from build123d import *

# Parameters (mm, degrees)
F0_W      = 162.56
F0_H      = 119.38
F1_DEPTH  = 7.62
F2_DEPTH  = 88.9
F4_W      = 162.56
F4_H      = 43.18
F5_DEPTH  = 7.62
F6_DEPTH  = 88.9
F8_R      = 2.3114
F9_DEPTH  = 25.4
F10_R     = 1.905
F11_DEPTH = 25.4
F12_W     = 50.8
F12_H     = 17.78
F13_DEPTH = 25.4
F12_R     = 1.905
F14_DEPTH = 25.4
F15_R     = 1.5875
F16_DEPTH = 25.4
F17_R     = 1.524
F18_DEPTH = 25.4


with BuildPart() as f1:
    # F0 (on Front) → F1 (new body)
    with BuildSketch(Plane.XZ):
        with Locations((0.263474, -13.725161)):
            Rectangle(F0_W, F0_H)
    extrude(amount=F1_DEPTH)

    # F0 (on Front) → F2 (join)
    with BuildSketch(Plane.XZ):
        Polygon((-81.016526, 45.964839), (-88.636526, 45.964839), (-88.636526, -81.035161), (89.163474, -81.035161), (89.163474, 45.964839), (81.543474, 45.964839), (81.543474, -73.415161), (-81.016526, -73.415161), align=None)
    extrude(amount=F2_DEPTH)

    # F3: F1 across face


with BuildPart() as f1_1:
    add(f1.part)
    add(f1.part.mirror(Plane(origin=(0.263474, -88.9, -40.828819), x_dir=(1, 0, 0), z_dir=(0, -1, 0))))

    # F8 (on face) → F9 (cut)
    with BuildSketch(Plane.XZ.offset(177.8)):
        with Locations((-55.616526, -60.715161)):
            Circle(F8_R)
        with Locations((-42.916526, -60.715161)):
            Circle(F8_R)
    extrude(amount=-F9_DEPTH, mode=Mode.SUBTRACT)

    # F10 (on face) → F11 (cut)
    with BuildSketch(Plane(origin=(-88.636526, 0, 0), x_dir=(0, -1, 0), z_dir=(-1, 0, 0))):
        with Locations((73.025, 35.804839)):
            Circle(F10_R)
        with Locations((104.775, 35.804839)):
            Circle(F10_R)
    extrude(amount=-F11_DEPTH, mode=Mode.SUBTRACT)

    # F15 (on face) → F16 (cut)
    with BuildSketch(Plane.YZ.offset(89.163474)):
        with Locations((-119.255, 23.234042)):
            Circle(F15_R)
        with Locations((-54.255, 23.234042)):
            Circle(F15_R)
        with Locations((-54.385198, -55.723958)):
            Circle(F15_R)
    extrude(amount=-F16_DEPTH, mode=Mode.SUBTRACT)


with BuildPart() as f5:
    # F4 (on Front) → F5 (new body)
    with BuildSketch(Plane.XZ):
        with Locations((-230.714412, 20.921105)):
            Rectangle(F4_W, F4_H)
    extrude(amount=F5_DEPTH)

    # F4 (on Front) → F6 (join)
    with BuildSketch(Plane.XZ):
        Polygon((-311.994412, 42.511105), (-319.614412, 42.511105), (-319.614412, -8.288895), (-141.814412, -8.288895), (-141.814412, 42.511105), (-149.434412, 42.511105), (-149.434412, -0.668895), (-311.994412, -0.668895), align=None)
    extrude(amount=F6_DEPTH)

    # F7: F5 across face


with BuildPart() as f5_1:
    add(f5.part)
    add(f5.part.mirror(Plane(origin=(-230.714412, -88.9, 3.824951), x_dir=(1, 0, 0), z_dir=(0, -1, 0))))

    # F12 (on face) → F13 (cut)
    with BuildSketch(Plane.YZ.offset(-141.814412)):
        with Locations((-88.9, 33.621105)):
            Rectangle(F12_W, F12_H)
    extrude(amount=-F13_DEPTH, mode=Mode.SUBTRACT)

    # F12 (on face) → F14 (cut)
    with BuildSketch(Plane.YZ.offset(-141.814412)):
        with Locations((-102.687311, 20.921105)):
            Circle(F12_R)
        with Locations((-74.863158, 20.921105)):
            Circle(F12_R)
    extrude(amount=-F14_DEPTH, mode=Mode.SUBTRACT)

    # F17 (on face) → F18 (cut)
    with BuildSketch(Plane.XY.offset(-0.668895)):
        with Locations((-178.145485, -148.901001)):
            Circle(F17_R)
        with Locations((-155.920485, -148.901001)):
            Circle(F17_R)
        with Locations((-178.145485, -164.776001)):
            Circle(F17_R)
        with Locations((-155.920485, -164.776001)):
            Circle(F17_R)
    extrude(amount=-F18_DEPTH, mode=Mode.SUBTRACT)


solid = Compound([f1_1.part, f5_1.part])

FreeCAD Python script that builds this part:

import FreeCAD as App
import Part
import Sketcher
from FreeCAD import Vector
Q = App.Units.Quantity

doc = App.newDocument("Part")
body = doc.addObject("PartDesign::Body", "Body")

# Sketch on XZ plane
sketch1 = doc.addObject("Sketcher::SketchObject", "Sketch")
body.addObject(sketch1)
sketch1.AttachmentSupport = (doc.XZ_Plane, [""])
sketch1.MapMode = "FlatFace"
sketch1.addGeometry([
    Part.LineSegment(Vector(-81, 46, 0), Vector(-81, -73, 0)),
    Part.LineSegment(Vector(-81, -73, 0), Vector(82, -73, 0)),
    Part.LineSegment(Vector(82, -73, 0), Vector(82, 46, 0)),
    Part.LineSegment(Vector(82, 46, 0), Vector(-81, 46, 0)),
], False)
sketch1.addConstraint([
    Sketcher.Constraint("Coincident", 0, 2, 1, 1),
    Sketcher.Constraint("Coincident", 1, 2, 2, 1),
    Sketcher.Constraint("Coincident", 2, 2, 3, 1),
    Sketcher.Constraint("Coincident", 3, 2, 0, 1),
    Sketcher.Constraint("Vertical", 0),
    Sketcher.Constraint("Horizontal", 1),
    Sketcher.Constraint("Vertical", 2),
    Sketcher.Constraint("Horizontal", 3),
    Sketcher.Constraint("DistanceX", 1, 1, 1, 2, Q("6.4 in")),
    Sketcher.Constraint("DistanceY", 0, 2, 0, 1, Q("4.7 in")),
    Sketcher.Constraint("DistanceY", 0, 2, -1, 1, 73.415161),
    Sketcher.Constraint("DistanceX", 0, 2, -1, 1, 81.016526),
])
pad1 = doc.addObject("PartDesign::Pad", "Pad")
body.addObject(pad1)
pad1.Profile = sketch1
pad1.Length = Q("0.3 in")

# Sketch on XZ plane
sketch2 = doc.addObject("Sketcher::SketchObject", "Sketch001")
body.addObject(sketch2)
sketch2.AttachmentSupport = (doc.XZ_Plane, [""])
sketch2.MapMode = "FlatFace"
sketch2.addGeometry([
    Part.LineSegment(Vector(-81, 46, 0), Vector(-89, 46, 0)),  # 0
    Part.LineSegment(Vector(-89, 46, 0), Vector(-89, -81, 0)),  # 1
    Part.LineSegment(Vector(-89, -81, 0), Vector(89, -81, 0)),  # 2
    Part.LineSegment(Vector(89, -81, 0), Vector(89, 46, 0)),  # 3
    Part.LineSegment(Vector(89, 46, 0), Vector(82, 46, 0)),  # 4
    Part.LineSegment(Vector(82, 46, 0), Vector(82, -73, 0)),  # 5
    Part.LineSegment(Vector(82, -73, 0), Vector(-81, -73, 0)),  # 6
    Part.LineSegment(Vector(-81, -73, 0), Vector(-81, 46, 0)),  # 7
], False)
sketch2.addConstraint([
    Sketcher.Constraint("Coincident", 0, 2, 1, 1),
    Sketcher.Constraint("Coincident", 1, 2, 2, 1),
    Sketcher.Constraint("Coincident", 2, 2, 3, 1),
    Sketcher.Constraint("Coincident", 3, 2, 4, 1),
    Sketcher.Constraint("Coincident", 4, 2, 5, 1),
    Sketcher.Constraint("Coincident", 5, 2, 6, 1),
    Sketcher.Constraint("Coincident", 6, 2, 7, 1),
    Sketcher.Constraint("Coincident", 7, 2, 0, 1),
    Sketcher.Constraint("Horizontal", 0),
    Sketcher.Constraint("Vertical", 1),
    Sketcher.Constraint("Horizontal", 2),
    Sketcher.Constraint("Vertical", 3),
    Sketcher.Constraint("Horizontal", 4),
    Sketcher.Constraint("Vertical", 5),
    Sketcher.Constraint("Horizontal", 6),
    Sketcher.Constraint("Vertical", 7),
    Sketcher.Constraint("Horizontal", 0, 2, 3, 2),
    Sketcher.Constraint("Equal", 0, 4),
    Sketcher.Constraint("DistanceX", 2, 1, 2, 2, Q("7 in")),
    Sketcher.Constraint("DistanceY", 1, 2, 1, 1, Q("5 in")),
    Sketcher.Constraint("DistanceX", 0, 2, 0, 1, Q("0.3 in")),
    Sketcher.Constraint("DistanceY", 5, 2, 5, 1, Q("4.7 in")),
    Sketcher.Constraint("DistanceY", -1, 1, 0, 2, 45.964839),
    Sketcher.Constraint("DistanceX", 0, 2, -1, 1, 88.636526),
])
pad2 = doc.addObject("PartDesign::Pad", "Pad001")
body.addObject(pad2)
pad2.Profile = sketch2
pad2.Length = Q("3.5 in")
body2 = doc.addObject("PartDesign::Body", "Body001")
doc.recompute()

body2.BaseFeature = body
doc.recompute()

mirroring = doc.addObject("Part::Mirroring", "Mirroring")
mirroring.Source = body
mirroring.Base = Vector(0.263474, -88.9, -40.828819)
mirroring.Normal = Vector(0, -1, 0)
body3 = doc.addObject("PartDesign::Body", "Body002")
body3.BaseFeature = mirroring
boolean = doc.addObject("PartDesign::Boolean", "Boolean")
body2.addObject(boolean)
boolean.Type = "Fuse"
boolean.addObjects([body3])
doc.recompute()

# Sketch on XZ plane
sketch3 = doc.addObject("Sketcher::SketchObject", "Sketch002")
body2.addObject(sketch3)
sketch3.AttachmentSupport = (doc.getObject("XZ_Plane001"), [""])
sketch3.MapMode = "FlatFace"
sketch3.AttachmentOffset = App.Placement(Vector(0, 0, 7 * 25.4), App.Rotation())
sketch3.addGeometry([
    Part.Circle(Vector(-55.6, -60.7, 0), Vector(0, 0, 1), 2.3),
    Part.Circle(Vector(-42.9, -60.7, 0), Vector(0, 0, 1), 2.3),
], False)
sketch3.addConstraint([
    Sketcher.Constraint("Equal", 0, 1),
    Sketcher.Constraint("Horizontal", 0, 3, 1, 3),
    Sketcher.Constraint("Diameter", 0, Q("0.182 in")),
    Sketcher.Constraint("DistanceX", 0, 3, 1, 3, Q("0.5 in")),
    Sketcher.Constraint("DistanceY", 0, 3, -1, 1, 60.715161),
    Sketcher.Constraint("DistanceX", 0, 3, -1, 1, 55.616526),
])
pocket1 = doc.addObject("PartDesign::Pocket", "Pocket")
body2.addObject(pocket1)
pocket1.Profile = sketch3
pocket1.Length = Q("1 in")

# Sketch on YZ plane
sketch4 = doc.addObject("Sketcher::SketchObject", "Sketch003")
body2.addObject(sketch4)
sketch4.AttachmentSupport = (doc.getObject("YZ_Plane001"), [""])
sketch4.MapMode = "FlatFace"
sketch4.AttachmentOffset = App.Placement(Vector(0, 0, -88.636526), App.Rotation())
sketch4.addGeometry([
    Part.Circle(Vector(-73, 35.8, 0), Vector(0, 0, 1), 1.9),
    Part.Circle(Vector(-104.8, 35.8, 0), Vector(0, 0, 1), 1.9),
], False)
sketch4.addConstraint([
    Sketcher.Constraint("Equal", 0, 1),
    Sketcher.Constraint("Horizontal", 0, 3, 1, 3),
    Sketcher.Constraint("Diameter", 0, Q("0.15 in")),
    Sketcher.Constraint("DistanceX", 1, 3, 0, 3, Q("1.25 in")),
    Sketcher.Constraint("DistanceX", 0, 3, -1, 1, Q("2.875 in")),
    Sketcher.Constraint("DistanceY", -1, 1, 0, 3, 35.804839),
])
pocket2 = doc.addObject("PartDesign::Pocket", "Pocket001")
body2.addObject(pocket2)
pocket2.Profile = sketch4
pocket2.Length = Q("1 in")
pocket2.Reversed = True

# Sketch on YZ plane
sketch5 = doc.addObject("Sketcher::SketchObject", "Sketch004")
body2.addObject(sketch5)
sketch5.AttachmentSupport = (doc.getObject("YZ_Plane001"), [""])
sketch5.MapMode = "FlatFace"
sketch5.AttachmentOffset = App.Placement(Vector(0, 0, 89.163474), App.Rotation())
sketch5.addGeometry([
    Part.Circle(Vector(-119.3, 23.2, 0), Vector(0, 0, 1), 1.6),
    Part.Circle(Vector(-54.3, 23.2, 0), Vector(0, 0, 1), 1.6),
    Part.Circle(Vector(-54.4, -55.7, 0), Vector(0, 0, 1), 1.6),
], False)
sketch5.addConstraint([
    Sketcher.Constraint("Equal", 0, 1),
    Sketcher.Constraint("Equal", 1, 2),
    Sketcher.Constraint("Horizontal", 0, 3, 1, 3),
    Sketcher.Constraint("Diameter", 0, Q("0.125 in")),
    Sketcher.Constraint("DistanceX", 0, 3, -1, 1, 119.255),
    Sketcher.Constraint("DistanceX", 1, 3, -1, 1, 54.255),
    Sketcher.Constraint("DistanceX", 2, 3, -1, 1, 54.385198),
    Sketcher.Constraint("DistanceY", 2, 3, 1, 3, 78.958),
    Sketcher.Constraint("DistanceY", -1, 1, 0, 3, 23.234042),
])
pocket3 = doc.addObject("PartDesign::Pocket", "Pocket002")
body2.addObject(pocket3)
pocket3.Profile = sketch5
pocket3.Length = Q("1 in")
body4 = doc.addObject("PartDesign::Body", "Body003")

# Sketch on XZ plane
sketch6 = doc.addObject("Sketcher::SketchObject", "Sketch005")
body4.addObject(sketch6)
sketch6.AttachmentSupport = (doc.getObject("XZ_Plane003"), [""])
sketch6.MapMode = "FlatFace"
sketch6.addGeometry([
    Part.LineSegment(Vector(-312, 43, 0), Vector(-312, -1, 0)),
    Part.LineSegment(Vector(-312, -1, 0), Vector(-149, -1, 0)),
    Part.LineSegment(Vector(-149, -1, 0), Vector(-149, 43, 0)),
    Part.LineSegment(Vector(-149, 43, 0), Vector(-312, 43, 0)),
], False)
sketch6.addConstraint([
    Sketcher.Constraint("Coincident", 0, 2, 1, 1),
    Sketcher.Constraint("Coincident", 1, 2, 2, 1),
    Sketcher.Constraint("Coincident", 2, 2, 3, 1),
    Sketcher.Constraint("Coincident", 3, 2, 0, 1),
    Sketcher.Constraint("Vertical", 0),
    Sketcher.Constraint("Horizontal", 1),
    Sketcher.Constraint("Vertical", 2),
    Sketcher.Constraint("Horizontal", 3),
    Sketcher.Constraint("DistanceX", 1, 1, 1, 2, Q("6.4 in")),
    Sketcher.Constraint("DistanceY", 0, 2, 0, 1, Q("1.7 in")),
    Sketcher.Constraint("DistanceX", 0, 2, -1, 1, 311.994412),
    Sketcher.Constraint("DistanceY", 0, 2, -1, 1, 0.668895),
])
pad3 = doc.addObject("PartDesign::Pad", "Pad002")
body4.addObject(pad3)
pad3.Profile = sketch6
pad3.Length = Q("0.3 in")

# Sketch on XZ plane
sketch7 = doc.addObject("Sketcher::SketchObject", "Sketch006")
body4.addObject(sketch7)
sketch7.AttachmentSupport = (doc.getObject("XZ_Plane003"), [""])
sketch7.MapMode = "FlatFace"
sketch7.addGeometry([
    Part.LineSegment(Vector(-312, 43, 0), Vector(-320, 43, 0)),  # 0
    Part.LineSegment(Vector(-320, 43, 0), Vector(-320, -8, 0)),  # 1
    Part.LineSegment(Vector(-320, -8, 0), Vector(-142, -8, 0)),  # 2
    Part.LineSegment(Vector(-142, -8, 0), Vector(-142, 43, 0)),  # 3
    Part.LineSegment(Vector(-142, 43, 0), Vector(-149, 43, 0)),  # 4
    Part.LineSegment(Vector(-149, 43, 0), Vector(-149, -1, 0)),  # 5
    Part.LineSegment(Vector(-149, -1, 0), Vector(-312, -1, 0)),  # 6
    Part.LineSegment(Vector(-312, -1, 0), Vector(-312, 43, 0)),  # 7
], False)
sketch7.addConstraint([
    Sketcher.Constraint("Coincident", 0, 2, 1, 1),
    Sketcher.Constraint("Coincident", 1, 2, 2, 1),
    Sketcher.Constraint("Coincident", 2, 2, 3, 1),
    Sketcher.Constraint("Coincident", 3, 2, 4, 1),
    Sketcher.Constraint("Coincident", 4, 2, 5, 1),
    Sketcher.Constraint("Coincident", 5, 2, 6, 1),
    Sketcher.Constraint("Coincident", 6, 2, 7, 1),
    Sketcher.Constraint("Coincident", 7, 2, 0, 1),
    Sketcher.Constraint("Horizontal", 0),
    Sketcher.Constraint("Vertical", 1),
    Sketcher.Constraint("Horizontal", 2),
    Sketcher.Constraint("Vertical", 3),
    Sketcher.Constraint("Horizontal", 4),
    Sketcher.Constraint("Vertical", 5),
    Sketcher.Constraint("Horizontal", 6),
    Sketcher.Constraint("Vertical", 7),
    Sketcher.Constraint("Horizontal", 0, 2, 3, 2),
    Sketcher.Constraint("Equal", 0, 4),
    Sketcher.Constraint("DistanceX", 2, 1, 2, 2, Q("7 in")),
    Sketcher.Constraint("DistanceY", 1, 2, 1, 1, Q("2 in")),
    Sketcher.Constraint("DistanceX", 0, 2, 0, 1, Q("0.3 in")),
    Sketcher.Constraint("DistanceY", 5, 2, 5, 1, Q("1.7 in")),
    Sketcher.Constraint("DistanceX", 0, 2, -1, 1, 319.614412),
    Sketcher.Constraint("DistanceY", -1, 1, 0, 2, 42.511105),
])
pad4 = doc.addObject("PartDesign::Pad", "Pad003")
body4.addObject(pad4)
pad4.Profile = sketch7
pad4.Length = Q("3.5 in")
body5 = doc.addObject("PartDesign::Body", "Body004")
doc.recompute()

body5.BaseFeature = body4
doc.recompute()

mirroring2 = doc.addObject("Part::Mirroring", "Mirroring001")
mirroring2.Source = body4
mirroring2.Base = Vector(-230.714412, -88.9, 3.824951)
mirroring2.Normal = Vector(0, -1, 0)
body6 = doc.addObject("PartDesign::Body", "Body005")
body6.BaseFeature = mirroring2
boolean2 = doc.addObject("PartDesign::Boolean", "Boolean001")
body5.addObject(boolean2)
boolean2.Type = "Fuse"
boolean2.addObjects([body6])
doc.recompute()

# Sketch on YZ plane
sketch8 = doc.addObject("Sketcher::SketchObject", "Sketch007")
body5.addObject(sketch8)
sketch8.AttachmentSupport = (doc.getObject("YZ_Plane004"), [""])
sketch8.MapMode = "FlatFace"
sketch8.AttachmentOffset = App.Placement(Vector(0, 0, -141.814412), App.Rotation())
sketch8.addGeometry([
    Part.LineSegment(Vector(-114, 43, 0), Vector(-114, 25, 0)),
    Part.LineSegment(Vector(-114, 25, 0), Vector(-64, 25, 0)),
    Part.LineSegment(Vector(-64, 25, 0), Vector(-64, 43, 0)),
    Part.LineSegment(Vector(-64, 43, 0), Vector(-114, 43, 0)),
], False)
sketch8.addConstraint([
    Sketcher.Constraint("Coincident", 0, 2, 1, 1),
    Sketcher.Constraint("Coincident", 1, 2, 2, 1),
    Sketcher.Constraint("Coincident", 2, 2, 3, 1),
    Sketcher.Constraint("Coincident", 3, 2, 0, 1),
    Sketcher.Constraint("Vertical", 0),
    Sketcher.Constraint("Horizontal", 1),
    Sketcher.Constraint("Vertical", 2),
    Sketcher.Constraint("Horizontal", 3),
    Sketcher.Constraint("DistanceX", 1, 1, 1, 2, Q("2 in")),
    Sketcher.Constraint("DistanceY", 0, 2, 0, 1, Q("0.7 in")),
    Sketcher.Constraint("DistanceX", 0, 2, -1, 1, Q("4.5 in")),
    Sketcher.Constraint("DistanceY", -1, 1, 0, 2, 24.731105),
])
pocket4 = doc.addObject("PartDesign::Pocket", "Pocket003")
body5.addObject(pocket4)
pocket4.Profile = sketch8
pocket4.Length = Q("1 in")

# Sketch on YZ plane
sketch9 = doc.addObject("Sketcher::SketchObject", "Sketch008")
body5.addObject(sketch9)
sketch9.AttachmentSupport = (doc.getObject("YZ_Plane004"), [""])
sketch9.MapMode = "FlatFace"
sketch9.AttachmentOffset = App.Placement(Vector(0, 0, -141.814412), App.Rotation())
sketch9.addGeometry([
    Part.Circle(Vector(-102.7, 20.9, 0), Vector(0, 0, 1), 1.9),
    Part.Circle(Vector(-74.9, 20.9, 0), Vector(0, 0, 1), 1.9),
], False)
sketch9.addConstraint([
    Sketcher.Constraint("Equal", 0, 1),
    Sketcher.Constraint("Horizontal", 0, 3, 1, 3),
    Sketcher.Constraint("Diameter", 0, Q("0.15 in")),
    Sketcher.Constraint("DistanceX", 0, 3, -1, 1, 102.687311),
    Sketcher.Constraint("DistanceX", 1, 3, -1, 1, 74.863158),
    Sketcher.Constraint("DistanceY", -1, 1, 0, 3, 20.921105),
])
pocket5 = doc.addObject("PartDesign::Pocket", "Pocket004")
body5.addObject(pocket5)
pocket5.Profile = sketch9
pocket5.Length = Q("1 in")

# Sketch on XY plane
sketch10 = doc.addObject("Sketcher::SketchObject", "Sketch009")
body5.addObject(sketch10)
sketch10.AttachmentSupport = (doc.getObject("XY_Plane004"), [""])
sketch10.MapMode = "FlatFace"
sketch10.AttachmentOffset = App.Placement(Vector(0, 0, -0.668895), App.Rotation())
sketch10.addGeometry([
    Part.Circle(Vector(-178.1, -148.9, 0), Vector(0, 0, 1), 1.5),
    Part.Circle(Vector(-155.9, -148.9, 0), Vector(0, 0, 1), 1.5),
    Part.Circle(Vector(-178.1, -164.8, 0), Vector(0, 0, 1), 1.5),
    Part.Circle(Vector(-155.9, -164.8, 0), Vector(0, 0, 1), 1.5),
], False)
sketch10.addConstraint([
    Sketcher.Constraint("Equal", 0, 1),
    Sketcher.Constraint("Equal", 1, 2),
    Sketcher.Constraint("Equal", 2, 3),
    Sketcher.Constraint("Horizontal", 0, 3, 1, 3),
    Sketcher.Constraint("Horizontal", 2, 3, 3, 3),
    Sketcher.Constraint("Vertical", 0, 3, 2, 3),
    Sketcher.Constraint("Vertical", 1, 3, 3, 3),
    Sketcher.Constraint("Diameter", 0, Q("0.12 in")),
    Sketcher.Constraint("DistanceX", 0, 3, 1, 3, Q("0.875 in")),
    Sketcher.Constraint("DistanceY", 2, 3, 0, 3, Q("0.625 in")),
    Sketcher.Constraint("DistanceY", 0, 3, -1, 1, 148.901001),
    Sketcher.Constraint("DistanceX", 0, 3, -1, 1, 178.145485),
])
pocket6 = doc.addObject("PartDesign::Pocket", "Pocket005")
body5.addObject(pocket6)
pocket6.Profile = sketch10
pocket6.Length = Q("1 in")
mirroring.Visibility = False
mirroring2.Visibility = False

doc.recompute()
